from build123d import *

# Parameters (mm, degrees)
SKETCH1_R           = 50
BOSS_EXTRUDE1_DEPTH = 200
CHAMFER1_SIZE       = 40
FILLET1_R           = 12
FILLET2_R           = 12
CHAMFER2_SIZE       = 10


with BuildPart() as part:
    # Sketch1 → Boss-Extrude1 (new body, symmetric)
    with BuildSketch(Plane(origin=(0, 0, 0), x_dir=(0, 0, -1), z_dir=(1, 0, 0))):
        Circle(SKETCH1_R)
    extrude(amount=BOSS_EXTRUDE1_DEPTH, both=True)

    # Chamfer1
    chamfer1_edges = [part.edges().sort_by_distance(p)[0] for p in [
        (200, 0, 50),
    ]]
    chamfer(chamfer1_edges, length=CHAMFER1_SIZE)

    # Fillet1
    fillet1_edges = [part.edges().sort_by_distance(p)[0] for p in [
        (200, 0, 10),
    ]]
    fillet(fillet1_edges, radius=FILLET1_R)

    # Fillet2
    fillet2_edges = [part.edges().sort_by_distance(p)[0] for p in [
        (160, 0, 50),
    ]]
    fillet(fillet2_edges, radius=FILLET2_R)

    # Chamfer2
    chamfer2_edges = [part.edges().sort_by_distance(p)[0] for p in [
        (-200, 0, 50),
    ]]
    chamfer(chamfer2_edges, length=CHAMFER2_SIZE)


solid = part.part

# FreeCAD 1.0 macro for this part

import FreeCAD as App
import Part
import Sketcher
Q = App.Units.Quantity


def edges_at(feature, points):
    """Names of the edges that pass closest to the given points."""
    edges = feature.Shape.Edges
    near = lambda p: min(range(len(edges)), key=lambda i: edges[i].distToShape(Part.Vertex(*p))[0])
    return sorted({f"Edge{near(p) + 1}" for p in points})

doc = App.newDocument("Part")
body = doc.addObject("PartDesign::Body", "Body")

sketch1 = body.newObject("Sketcher::SketchObject", "Sketch")
sketch1.AttachmentSupport = (doc.getObject("YZ_Plane"), [""])
sketch1.MapMode = "FlatFace"
sketch1.addGeometry(Part.Circle(App.Vector(0, 0, 0), App.Vector(0, 0, 1), 50), False)
sketch1.addConstraint([
    Sketcher.Constraint("Coincident", 0, 3, -1, 1),
    Sketcher.Constraint("Diameter", 0, Q("100 mm")),
])
pad1 = body.newObject("PartDesign::Pad", "Pad")
pad1.Profile = sketch1
pad1.Length = 400
pad1.Midplane = True
doc.recompute()

chamfer = body.newObject("PartDesign::Chamfer", "Chamfer")
chamfer.Base = (pad1, edges_at(pad1, [(200, 0, 50)]))
chamfer.Size = 40
doc.recompute()

fillet = body.newObject("PartDesign::Fillet", "Fillet")
fillet.Base = (chamfer, edges_at(chamfer, [(200, 0, 10)]))
fillet.Radius = 12
doc.recompute()

fillet2 = body.newObject("PartDesign::Fillet", "Fillet001")
fillet2.Base = (fillet, edges_at(fillet, [(160, 0, 50)]))
fillet2.Radius = 12
doc.recompute()

chamfer2 = body.newObject("PartDesign::Chamfer", "Chamfer001")
chamfer2.Base = (fillet2, edges_at(fillet2, [(-200, 0, 50)]))
chamfer2.Size = 10

doc.recompute()
